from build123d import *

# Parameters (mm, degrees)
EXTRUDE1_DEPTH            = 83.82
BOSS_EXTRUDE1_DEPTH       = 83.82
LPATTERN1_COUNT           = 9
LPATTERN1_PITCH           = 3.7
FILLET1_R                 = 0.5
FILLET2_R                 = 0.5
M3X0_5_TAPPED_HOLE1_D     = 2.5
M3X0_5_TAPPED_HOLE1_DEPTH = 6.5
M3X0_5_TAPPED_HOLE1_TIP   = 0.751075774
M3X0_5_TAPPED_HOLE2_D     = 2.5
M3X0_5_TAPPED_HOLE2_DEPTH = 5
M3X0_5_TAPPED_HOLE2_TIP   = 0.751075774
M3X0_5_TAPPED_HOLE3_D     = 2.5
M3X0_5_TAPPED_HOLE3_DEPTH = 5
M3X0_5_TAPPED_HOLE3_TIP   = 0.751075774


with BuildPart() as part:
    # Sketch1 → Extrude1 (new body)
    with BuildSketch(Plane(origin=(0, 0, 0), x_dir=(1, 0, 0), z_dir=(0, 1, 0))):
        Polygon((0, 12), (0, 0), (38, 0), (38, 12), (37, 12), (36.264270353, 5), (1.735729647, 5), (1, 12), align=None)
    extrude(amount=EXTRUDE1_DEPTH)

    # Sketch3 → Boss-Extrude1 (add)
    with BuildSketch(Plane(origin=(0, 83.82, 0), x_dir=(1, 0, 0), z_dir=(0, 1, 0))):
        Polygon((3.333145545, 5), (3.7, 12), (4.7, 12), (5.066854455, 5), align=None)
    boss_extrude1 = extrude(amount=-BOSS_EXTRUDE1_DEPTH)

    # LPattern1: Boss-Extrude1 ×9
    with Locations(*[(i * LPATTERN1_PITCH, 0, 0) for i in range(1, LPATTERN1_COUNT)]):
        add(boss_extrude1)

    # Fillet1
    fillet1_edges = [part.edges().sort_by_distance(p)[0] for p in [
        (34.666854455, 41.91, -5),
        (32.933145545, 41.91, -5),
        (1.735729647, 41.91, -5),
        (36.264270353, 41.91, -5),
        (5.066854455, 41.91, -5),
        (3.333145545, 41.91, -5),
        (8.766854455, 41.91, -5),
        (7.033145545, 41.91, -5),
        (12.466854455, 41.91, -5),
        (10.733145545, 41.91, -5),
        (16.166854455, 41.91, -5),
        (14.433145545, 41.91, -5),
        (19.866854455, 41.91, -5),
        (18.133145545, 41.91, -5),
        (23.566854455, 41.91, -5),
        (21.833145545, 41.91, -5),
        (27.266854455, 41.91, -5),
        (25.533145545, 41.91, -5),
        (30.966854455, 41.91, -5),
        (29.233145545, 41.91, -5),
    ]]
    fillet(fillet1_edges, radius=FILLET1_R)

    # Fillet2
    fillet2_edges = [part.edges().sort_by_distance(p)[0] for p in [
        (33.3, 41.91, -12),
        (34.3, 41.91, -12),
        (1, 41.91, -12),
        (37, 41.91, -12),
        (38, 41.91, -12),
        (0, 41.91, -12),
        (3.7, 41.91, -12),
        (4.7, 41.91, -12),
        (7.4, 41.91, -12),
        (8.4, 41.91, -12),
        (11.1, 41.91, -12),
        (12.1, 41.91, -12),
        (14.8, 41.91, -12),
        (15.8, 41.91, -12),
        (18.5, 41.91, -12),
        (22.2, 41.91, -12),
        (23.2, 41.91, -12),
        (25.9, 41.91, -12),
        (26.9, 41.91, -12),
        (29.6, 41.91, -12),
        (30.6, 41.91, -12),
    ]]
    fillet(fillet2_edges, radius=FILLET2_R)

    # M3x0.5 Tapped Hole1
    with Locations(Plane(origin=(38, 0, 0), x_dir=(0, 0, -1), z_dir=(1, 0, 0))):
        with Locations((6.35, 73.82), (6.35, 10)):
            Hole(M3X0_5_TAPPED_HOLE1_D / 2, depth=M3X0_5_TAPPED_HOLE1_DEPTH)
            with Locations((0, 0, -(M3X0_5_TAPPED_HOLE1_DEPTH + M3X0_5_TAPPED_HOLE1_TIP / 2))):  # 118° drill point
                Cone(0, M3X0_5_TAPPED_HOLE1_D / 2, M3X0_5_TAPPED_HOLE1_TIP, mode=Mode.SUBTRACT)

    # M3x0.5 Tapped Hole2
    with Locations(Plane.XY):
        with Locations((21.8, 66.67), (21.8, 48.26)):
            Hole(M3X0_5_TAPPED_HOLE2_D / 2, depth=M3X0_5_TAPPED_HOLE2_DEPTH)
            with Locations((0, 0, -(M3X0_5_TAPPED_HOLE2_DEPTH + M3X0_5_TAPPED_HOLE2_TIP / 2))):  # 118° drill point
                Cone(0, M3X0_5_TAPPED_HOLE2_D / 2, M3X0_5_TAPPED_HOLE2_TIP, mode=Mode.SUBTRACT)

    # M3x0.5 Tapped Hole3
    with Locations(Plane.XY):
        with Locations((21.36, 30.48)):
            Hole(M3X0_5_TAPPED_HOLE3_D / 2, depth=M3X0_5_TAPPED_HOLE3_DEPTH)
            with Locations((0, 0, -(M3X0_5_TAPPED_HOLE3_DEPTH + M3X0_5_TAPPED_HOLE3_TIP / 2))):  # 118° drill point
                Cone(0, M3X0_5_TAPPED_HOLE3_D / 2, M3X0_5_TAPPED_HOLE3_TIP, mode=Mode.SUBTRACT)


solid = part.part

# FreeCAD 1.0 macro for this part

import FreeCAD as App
import Part
import Sketcher

V = App.Vector
Q = App.Units.Quantity


def edges_at(feature, points):
    """Names of the edges that pass closest to the given points."""
    edges = feature.Shape.Edges
    near = lambda p: min(range(len(edges)), key=lambda i: edges[i].distToShape(Part.Vertex(*p))[0])
    return sorted({f"Edge{near(p) + 1}" for p in points})

doc = App.newDocument("Part")
body = doc.addObject("PartDesign::Body", "Body")

sketch1 = doc.addObject("Sketcher::SketchObject", "Sketch")
body.addObject(sketch1)
sketch1.AttachmentSupport = (doc.XZ_Plane, [""])
sketch1.MapMode = "FlatFace"
sketch1.addGeometry(Part.LineSegment(V(0, -12, 0), V(0, 0, 0)), False)
sketch1.addGeometry(Part.LineSegment(V(0, 0, 0), V(38, 0, 0)), False)
sketch1.addGeometry(Part.LineSegment(V(38, 0, 0), V(38, -12, 0)), False)
sketch1.addGeometry(Part.LineSegment(V(38, -12, 0), V(37, -12, 0)), False)
sketch1.addGeometry(Part.LineSegment(V(37, -12, 0), V(36.3, -5, 0)), False)
sketch1.addGeometry(Part.LineSegment(V(36.3, -5, 0), V(1.7, -5, 0)), False)
sketch1.addGeometry(Part.LineSegment(V(1.7, -5, 0), V(1, -12, 0)), False)
sketch1.addGeometry(Part.LineSegment(V(1, -12, 0), V(0, -12, 0)), False)
sketch1.addConstraint(Sketcher.Constraint("Coincident", 0, 2, 1, 1))
sketch1.addConstraint(Sketcher.Constraint("Coincident", 1, 2, 2, 1))
sketch1.addConstraint(Sketcher.Constraint("Coincident", 2, 2, 3, 1))
sketch1.addConstraint(Sketcher.Constraint("Coincident", 3, 2, 4, 1))
sketch1.addConstraint(Sketcher.Constraint("Coincident", 4, 2, 5, 1))
sketch1.addConstraint(Sketcher.Constraint("Coincident", 5, 2, 6, 1))
sketch1.addConstraint(Sketcher.Constraint("Coincident", 6, 2, 7, 1))
sketch1.addConstraint(Sketcher.Constraint("Coincident", 7, 2, 0, 1))
sketch1.addConstraint(Sketcher.Constraint("Vertical", 0))
sketch1.addConstraint(Sketcher.Constraint("Horizontal", 1))
sketch1.addConstraint(Sketcher.Constraint("Vertical", 2))
sketch1.addConstraint(Sketcher.Constraint("Horizontal", 3))
sketch1.addConstraint(Sketcher.Constraint("Horizontal", 5))
sketch1.addConstraint(Sketcher.Constraint("Horizontal", 7))
sketch1.addConstraint(Sketcher.Constraint("Coincident", 0, 2, -1, 1))
sketch1.addConstraint(Sketcher.Constraint("Horizontal", 3, 2, 6, 2))
sketch1.addConstraint(Sketcher.Constraint("Equal", 3, 7))
sketch1.addConstraint(Sketcher.Constraint("Equal", 4, 6))
sketch1.addConstraint(Sketcher.Constraint("DistanceX", 1, 1, 1, 2, Q("38 mm")))
sketch1.addConstraint(Sketcher.Constraint("DistanceX", 3, 2, 3, 1, Q("1 mm")))
sketch1.addConstraint(Sketcher.Constraint("DistanceY", 0, 1, 0, 2, Q("12 mm")))
sketch1.addConstraint(Sketcher.Constraint("Angle", 4, Q("96 deg")))
sketch1.addConstraint(Sketcher.Constraint("DistanceY", 4, 2, -1, 1, Q("5 mm")))
pad1 = doc.addObject("PartDesign::Pad", "Pad")
body.addObject(pad1)
pad1.Profile = sketch1
pad1.Length = 83.82
pad1.Reversed = True

sketch2 = doc.addObject("Sketcher::SketchObject", "Sketch001")
body.addObject(sketch2)
sketch2.AttachmentSupport = (doc.XZ_Plane, [""])
sketch2.MapMode = "FlatFace"
sketch2.AttachmentOffset = App.Placement(V(0, 0, -83.82), App.Rotation())
sketch2.addGeometry(Part.LineSegment(V(3.7, -12, 0), V(3.3, -5, 0)), False)
sketch2.addGeometry(Part.LineSegment(V(3.3, -5, 0), V(5.1, -5, 0)), False)
sketch2.addGeometry(Part.LineSegment(V(5.1, -5, 0), V(4.7, -12, 0)), False)
sketch2.addGeometry(Part.LineSegment(V(4.7, -12, 0), V(3.7, -12, 0)), False)
sketch2.addConstraint(Sketcher.Constraint("Coincident", 0, 2, 1, 1))
sketch2.addConstraint(Sketcher.Constraint("Coincident", 1, 2, 2, 1))
sketch2.addConstraint(Sketcher.Constraint("Coincident", 2, 2, 3, 1))
sketch2.addConstraint(Sketcher.Constraint("Coincident", 3, 2, 0, 1))
sketch2.addConstraint(Sketcher.Constraint("Horizontal", 1))
sketch2.addConstraint(Sketcher.Constraint("Horizontal", 3))
sketch2.addConstraint(Sketcher.Constraint("Equal", 0, 2))
sketch2.addConstraint(Sketcher.Constraint("DistanceX", 3, 2, 3, 1, Q("1 mm")))
sketch2.addConstraint(Sketcher.Constraint("Angle", 0, Q("93 deg")))
sketch2.addConstraint(Sketcher.Constraint("DistanceY", 0, 2, -1, 1, Q("5 mm")))
sketch2.addConstraint(Sketcher.Constraint("DistanceY", 2, 2, -1, 1, Q("12 mm")))
sketch2.addConstraint(Sketcher.Constraint("DistanceX", -1, 1, 2, 2, Q("4.7 mm")))
pad2 = doc.addObject("PartDesign::Pad", "Pad001")
body.addObject(pad2)
pad2.Profile = sketch2
pad2.Length = 83.82
doc.recompute()

linearpattern = doc.addObject("PartDesign::LinearPattern", "LinearPattern")
body.addObject(linearpattern)
linearpattern.Originals = [pad2]
linearpattern.Direction = (doc.X_Axis, [""])
linearpattern.Mode = "offset"
linearpattern.Offset = 3.7
linearpattern.Occurrences = 9
body.Tip = linearpattern
doc.recompute()

fillet = doc.addObject("PartDesign::Fillet", "Fillet")
body.addObject(fillet)
fillet.Base = (linearpattern, edges_at(linearpattern, [
    (34.667, 41.91, -5),
    (32.933, 41.91, -5),
    (1.736, 41.91, -5),
    (36.264, 41.91, -5),
    (5.067, 41.91, -5),
    (3.333, 41.91, -5),
    (8.767, 41.91, -5),
    (7.033, 41.91, -5),
    (12.467, 41.91, -5),
    (10.733, 41.91, -5),
    (16.167, 41.91, -5),
    (14.433, 41.91, -5),
    (19.867, 41.91, -5),
    (18.133, 41.91, -5),
    (23.567, 41.91, -5),
    (21.833, 41.91, -5),
    (27.267, 41.91, -5),
    (25.533, 41.91, -5),
    (30.967, 41.91, -5),
    (29.233, 41.91, -5),
]))
fillet.Radius = 0.5
doc.recompute()

fillet2 = doc.addObject("PartDesign::Fillet", "Fillet001")
body.addObject(fillet2)
fillet2.Base = (fillet, edges_at(fillet, [
    (33.3, 41.91, -12),
    (34.3, 41.91, -12),
    (1, 41.91, -12),
    (37, 41.91, -12),
    (38, 41.91, -12),
    (0, 41.91, -12),
    (3.7, 41.91, -12),
    (4.7, 41.91, -12),
    (7.4, 41.91, -12),
    (8.4, 41.91, -12),
    (11.1, 41.91, -12),
    (12.1, 41.91, -12),
    (14.8, 41.91, -12),
    (15.8, 41.91, -12),
    (18.5, 41.91, -12),
    (22.2, 41.91, -12),
    (23.2, 41.91, -12),
    (25.9, 41.91, -12),
    (26.9, 41.91, -12),
    (29.6, 41.91, -12),
    (30.6, 41.91, -12),
]))
fillet2.Radius = 0.5

sketch3 = doc.addObject("Sketcher::SketchObject", "Sketch002")
body.addObject(sketch3)
sketch3.AttachmentSupport = (doc.YZ_Plane, [""])
sketch3.MapMode = "FlatFace"
sketch3.AttachmentOffset = App.Placement(V(0, 0, 38), App.Rotation())
sketch3.addGeometry(Part.Circle(V(73.8, -6.3, 0), V(0, 0, 1), 1.2), False)
sketch3.addGeometry(Part.Circle(V(10, -6.3, 0), V(0, 0, 1), 1.2), False)
sketch3.addConstraint(Sketcher.Constraint("Equal", 0, 1))
sketch3.addConstraint(Sketcher.Constraint("Horizontal", 0, 3, 1, 3))
sketch3.addConstraint(Sketcher.Constraint("Diameter", 0, Q("2.5 mm")))
sketch3.addConstraint(Sketcher.Constraint("DistanceX", -1, 1, 1, 3, Q("10 mm")))
sketch3.addConstraint(Sketcher.Constraint("DistanceX", -1, 1, 0, 3, Q("73.82 mm")))
sketch3.addConstraint(Sketcher.Constraint("DistanceY", 0, 3, -1, 1, Q("6.35 mm")))
doc.recompute()
hole = doc.addObject("PartDesign::Hole", "Hole")
body.addObject(hole)
hole.Profile = sketch3
hole.ThreadType = "None"
hole.Diameter = 2.5
hole.DepthType = "Dimension"
hole.Depth = 6.5
hole.DrillPoint = "Angled"
hole.DrillPointAngle = 118

sketch4 = doc.addObject("Sketcher::SketchObject", "Sketch003")
body.addObject(sketch4)
sketch4.AttachmentSupport = (doc.XY_Plane, [""])
sketch4.MapMode = "FlatFace"
sketch4.addGeometry(Part.Circle(V(21.8, 66.7, 0), V(0, 0, 1), 1.2), False)
sketch4.addGeometry(Part.Circle(V(21.8, 48.3, 0), V(0, 0, 1), 1.2), False)
sketch4.addConstraint(Sketcher.Constraint("Equal", 0, 1))
sketch4.addConstraint(Sketcher.Constraint("Vertical", 0, 3, 1, 3))
sketch4.addConstraint(Sketcher.Constraint("Diameter", 0, Q("2.5 mm")))
sketch4.addConstraint(Sketcher.Constraint("DistanceX", -1, 1, 0, 3, Q("21.8 mm")))
sketch4.addConstraint(Sketcher.Constraint("DistanceY", -1, 1, 0, 3, Q("66.67 mm")))
sketch4.addConstraint(Sketcher.Constraint("DistanceY", -1, 1, 1, 3, Q("48.26 mm")))
doc.recompute()
hole2 = doc.addObject("PartDesign::Hole", "Hole001")
body.addObject(hole2)
hole2.Profile = sketch4
hole2.ThreadType = "None"
hole2.Diameter = 2.5
hole2.DepthType = "Dimension"
hole2.Depth = 5
hole2.DrillPoint = "Angled"
hole2.DrillPointAngle = 118

sketch5 = doc.addObject("Sketcher::SketchObject", "Sketch004")
body.addObject(sketch5)
sketch5.AttachmentSupport = (doc.XY_Plane, [""])
sketch5.MapMode = "FlatFace"
sketch5.addGeometry(Part.Circle(V(21.4, 30.5, 0), V(0, 0, 1), 1.2), False)
sketch5.addConstraint(Sketcher.Constraint("Diameter", 0, Q("2.5 mm")))
sketch5.addConstraint(Sketcher.Constraint("DistanceX", -1, 1, 0, 3, Q("21.36 mm")))
sketch5.addConstraint(Sketcher.Constraint("DistanceY", -1, 1, 0, 3, Q("30.48 mm")))
doc.recompute()
hole3 = doc.addObject("PartDesign::Hole", "Hole002")
body.addObject(hole3)
hole3.Profile = sketch5
hole3.ThreadType = "None"
hole3.Diameter = 2.5
hole3.DepthType = "Dimension"
hole3.Depth = 5
hole3.DrillPoint = "Angled"
hole3.DrillPointAngle = 118

doc.recompute()
